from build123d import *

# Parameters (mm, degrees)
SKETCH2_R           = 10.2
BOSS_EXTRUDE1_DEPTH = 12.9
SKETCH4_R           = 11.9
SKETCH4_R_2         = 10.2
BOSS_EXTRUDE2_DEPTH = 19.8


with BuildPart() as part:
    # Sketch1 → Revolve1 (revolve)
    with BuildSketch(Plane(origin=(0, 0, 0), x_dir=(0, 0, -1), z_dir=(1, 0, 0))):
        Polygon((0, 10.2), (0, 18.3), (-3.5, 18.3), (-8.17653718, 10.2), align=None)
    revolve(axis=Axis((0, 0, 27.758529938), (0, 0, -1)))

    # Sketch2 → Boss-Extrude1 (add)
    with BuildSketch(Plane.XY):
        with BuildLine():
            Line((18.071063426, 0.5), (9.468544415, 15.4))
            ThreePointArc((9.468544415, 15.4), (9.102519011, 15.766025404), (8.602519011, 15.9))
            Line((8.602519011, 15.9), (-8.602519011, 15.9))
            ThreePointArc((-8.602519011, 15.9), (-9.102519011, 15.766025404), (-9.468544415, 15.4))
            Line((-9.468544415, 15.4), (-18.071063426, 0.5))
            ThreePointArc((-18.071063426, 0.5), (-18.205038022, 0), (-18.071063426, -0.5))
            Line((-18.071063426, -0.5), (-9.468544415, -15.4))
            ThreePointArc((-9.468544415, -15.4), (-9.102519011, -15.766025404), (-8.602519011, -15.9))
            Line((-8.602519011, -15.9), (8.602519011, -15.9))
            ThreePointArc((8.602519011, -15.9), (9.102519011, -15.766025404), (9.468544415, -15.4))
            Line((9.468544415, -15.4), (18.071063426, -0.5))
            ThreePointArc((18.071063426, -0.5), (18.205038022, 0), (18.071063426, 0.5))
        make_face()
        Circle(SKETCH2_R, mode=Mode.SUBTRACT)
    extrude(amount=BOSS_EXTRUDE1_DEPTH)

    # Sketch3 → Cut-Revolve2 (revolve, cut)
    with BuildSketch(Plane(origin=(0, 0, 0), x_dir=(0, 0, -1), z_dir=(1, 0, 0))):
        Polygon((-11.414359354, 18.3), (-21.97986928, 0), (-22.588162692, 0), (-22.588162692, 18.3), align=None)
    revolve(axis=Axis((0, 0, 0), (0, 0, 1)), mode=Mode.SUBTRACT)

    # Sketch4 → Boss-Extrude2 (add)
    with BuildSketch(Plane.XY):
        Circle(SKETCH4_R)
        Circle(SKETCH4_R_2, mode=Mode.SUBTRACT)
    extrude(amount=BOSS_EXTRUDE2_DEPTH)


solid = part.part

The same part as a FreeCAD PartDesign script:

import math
import FreeCAD as App
import Part
import Sketcher
from FreeCAD import Vector
Q = App.Units.Quantity


def add_polygon(sketch, points):
    """Adds a closed chain of lines whose ends are joined by coincident constraints."""
    first, n = sketch.GeometryCount, len(points)
    for a, b in zip(points, points[1:] + points[:1]):
        sketch.addGeometry(Part.LineSegment(App.Vector(*a, 0), App.Vector(*b, 0)), False)
    for i in range(n):
        sketch.addConstraint(Sketcher.Constraint("Coincident", first + i, 2, first + (i + 1) % n, 1))

doc = App.newDocument("Part")
params = doc.addObject("Spreadsheet::Sheet", "Params")
for row, (alias, value) in enumerate([
    ("sketch1_width", "8.1 mm"),
    ("sketch1_height", "3.5 mm"),
    ("revolution_angle", "360 deg"),
    ("sketch2_radius", "1 mm"),
    ("sketch2_diameter", "20.4 mm"),
    ("pad1_length", "12.9 mm"),
    ("sketch3_width", "18.3 mm"),
    ("groove_angle", "360 deg"),
    ("sketch4_diameter", "23.8 mm"),
    ("sketch4_diameter2", "20.4 mm"),
    ("pad2_length", "19.8 mm"),
], start=1):
    params.set(f"A{row}", alias)
    params.set(f"B{row}", "=" + value)
    params.setAlias(f"B{row}", alias)

body = doc.addObject("PartDesign::Body", "Body")

# Sketch on YZ plane
sketch1 = body.newObject("Sketcher::SketchObject", "Sketch")
sketch1.AttachmentSupport = (doc.getObject("YZ_Plane"), [""])
sketch1.MapMode = "FlatFace"
add_polygon(sketch1, [(10.2, 0), (18.3, 0), (18.3, 3.5), (10.2, 8.2)])  # lines 0-3
sketch1.addConstraint([
    Sketcher.Constraint("Horizontal", 0),
    Sketcher.Constraint("Vertical", 1),
    Sketcher.Constraint("Vertical", 3),
    Sketcher.Constraint("PointOnObject", 0, 2, -1),
    Sketcher.Constraint("Angle", 2, Q("150 deg")),
    Sketcher.Constraint("DistanceX", 0, 1, 0, 2, Q("8.1 mm")),
    Sketcher.Constraint("DistanceY", 1, 1, 1, 2, Q("3.5 mm")),
    Sketcher.Constraint("DistanceX", -1, 1, 0, 2, Q("18.3 mm")),
])
sketch1.setExpression("Constraints[9]", "Params.sketch1_width")
sketch1.setExpression("Constraints[10]", "Params.sketch1_height")
revolution = body.newObject("PartDesign::Revolution", "Revolution")
revolution.Profile = sketch1
revolution.ReferenceAxis = (sketch1, ["V_Axis"])
revolution.setExpression("Angle", "Params.revolution_angle")

# Sketch on XY plane
sketch2 = body.newObject("Sketcher::SketchObject", "Sketch001")
sketch2.AttachmentSupport = (doc.getObject("XY_Plane"), [""])
sketch2.MapMode = "FlatFace"
sketch2.addGeometry([
    Part.LineSegment(Vector(18.1, 0.5, 0), Vector(9.5, 15.4, 0)),  # 0
    Part.ArcOfCircle(Part.Circle(Vector(8.6, 14.9, 0), Vector(0, 0, 1), 1), math.radians(30), math.radians(90)),  # 1
    Part.LineSegment(Vector(8.6, 15.9, 0), Vector(-8.6, 15.9, 0)),  # 2
    Part.ArcOfCircle(Part.Circle(Vector(-8.6, 14.9, 0), Vector(0, 0, 1), 1), math.radians(90), math.radians(150)),  # 3
    Part.LineSegment(Vector(-9.5, 15.4, 0), Vector(-18.1, 0.5, 0)),  # 4
    Part.ArcOfCircle(Part.Circle(Vector(-17.2, 0, 0), Vector(0, 0, 1), 1), math.radians(150), math.radians(210)),  # 5
    Part.LineSegment(Vector(-18.1, -0.5, 0), Vector(-9.5, -15.4, 0)),  # 6
    Part.ArcOfCircle(Part.Circle(Vector(-8.6, -14.9, 0), Vector(0, 0, 1), 1), math.radians(-150), math.radians(-90)),  # 7
    Part.LineSegment(Vector(-8.6, -15.9, 0), Vector(8.6, -15.9, 0)),  # 8
    Part.ArcOfCircle(Part.Circle(Vector(8.6, -14.9, 0), Vector(0, 0, 1), 1), math.radians(-90), math.radians(-30)),  # 9
    Part.LineSegment(Vector(9.5, -15.4, 0), Vector(18.1, -0.5, 0)),  # 10
    Part.ArcOfCircle(Part.Circle(Vector(17.2, 0, 0), Vector(0, 0, 1), 1), math.radians(-30), math.radians(30)),  # 11
    Part.Circle(Vector(0, 0, 0), Vector(0, 0, 1), 10.2),  # 12
], False)
sketch2.addConstraint([
    Sketcher.Constraint("Tangent", 0, 2, 1, 1),
    Sketcher.Constraint("Tangent", 1, 2, 2, 1),
    Sketcher.Constraint("Tangent", 2, 2, 3, 1),
    Sketcher.Constraint("Tangent", 3, 2, 4, 1),
    Sketcher.Constraint("Tangent", 4, 2, 5, 1),
    Sketcher.Constraint("Tangent", 5, 2, 6, 1),
    Sketcher.Constraint("Tangent", 6, 2, 7, 1),
    Sketcher.Constraint("Tangent", 7, 2, 8, 1),
    Sketcher.Constraint("Tangent", 8, 2, 9, 1),
    Sketcher.Constraint("Tangent", 9, 2, 10, 1),
    Sketcher.Constraint("Tangent", 10, 2, 11, 1),
    Sketcher.Constraint("Tangent", 11, 2, 0, 1),
    Sketcher.Constraint("Horizontal", 2),
    Sketcher.Constraint("Horizontal", 8),
    Sketcher.Constraint("Coincident", 12, 3, -1, 1),
    Sketcher.Constraint("Equal", 1, 3),
    Sketcher.Constraint("Equal", 3, 5),
    Sketcher.Constraint("Equal", 5, 7),
    Sketcher.Constraint("Equal", 7, 9),
    Sketcher.Constraint("Equal", 9, 11),
    Sketcher.Constraint("Symmetric", 1, 3, 7, 3, -1, 1),
    Sketcher.Constraint("Symmetric", 5, 3, 11, 3, -1, 1),
    Sketcher.Constraint("Symmetric", 0, 2, 3, 2, -2),
    Sketcher.Constraint("Parallel", 4, 10),
    Sketcher.Constraint("Radius", 1, Q("1 mm")),
    Sketcher.Constraint("Diameter", 12, Q("20.4 mm")),
    Sketcher.Constraint("Angle", 0, Q("120 deg")),
    Sketcher.Constraint("DistanceY", -1, 1, 1, 3, Q("14.9 mm")),
    Sketcher.Constraint("DistanceX", 2, 2, 2, 1, Q("17.205038 mm")),
])
sketch2.setExpression("Constraints[24]", "Params.sketch2_radius")
sketch2.setExpression("Constraints[25]", "Params.sketch2_diameter")
pad1 = body.newObject("PartDesign::Pad", "Pad")
pad1.Profile = sketch2
pad1.setExpression("Length", "Params.pad1_length")

# Sketch on YZ plane
sketch3 = body.newObject("Sketcher::SketchObject", "Sketch002")
sketch3.AttachmentSupport = (doc.getObject("YZ_Plane"), [""])
sketch3.MapMode = "FlatFace"
add_polygon(sketch3, [(0, 22), (18.3, 11.4), (18.3, 22.6), (0, 22.6)])  # lines 0-3
sketch3.addConstraint([
    Sketcher.Constraint("Vertical", 1),
    Sketcher.Constraint("Horizontal", 2),
    Sketcher.Constraint("Vertical", 3),
    Sketcher.Constraint("PointOnObject", 2, 2, -2),
    Sketcher.Constraint("Angle", 0, Q("-30 deg")),
    Sketcher.Constraint("DistanceX", 2, 2, 2, 1, Q("18.3 mm")),
    Sketcher.Constraint("DistanceY", 1, 1, 1, 2, Q("11.173803 mm")),
    Sketcher.Constraint("DistanceY", -1, 1, 0, 2, Q("11.414359 mm")),
])
sketch3.setExpression("Constraints[9]", "Params.sketch3_width")
groove = body.newObject("PartDesign::Groove", "Groove")
groove.Profile = sketch3
groove.ReferenceAxis = (sketch3, ["V_Axis"])
groove.setExpression("Angle", "Params.groove_angle")

# Sketch on XY plane
sketch4 = body.newObject("Sketcher::SketchObject", "Sketch003")
sketch4.AttachmentSupport = (doc.getObject("XY_Plane"), [""])
sketch4.MapMode = "FlatFace"
sketch4.addGeometry([
    Part.Circle(Vector(0, 0, 0), Vector(0, 0, 1), 12),
    Part.Circle(Vector(0, 0, 0), Vector(0, 0, 1), 10),
], False)
sketch4.addConstraint([
    Sketcher.Constraint("Coincident", 0, 3, -1, 1),
    Sketcher.Constraint("Coincident", 1, 3, -1, 1),
    Sketcher.Constraint("Diameter", 0, Q("23.8 mm")),
    Sketcher.Constraint("Diameter", 1, Q("20.4 mm")),
])
sketch4.setExpression("Constraints[2]", "Params.sketch4_diameter")
sketch4.setExpression("Constraints[3]", "Params.sketch4_diameter2")
pad2 = body.newObject("PartDesign::Pad", "Pad001")
pad2.Profile = sketch4
pad2.setExpression("Length", "Params.pad2_length")

doc.recompute()
